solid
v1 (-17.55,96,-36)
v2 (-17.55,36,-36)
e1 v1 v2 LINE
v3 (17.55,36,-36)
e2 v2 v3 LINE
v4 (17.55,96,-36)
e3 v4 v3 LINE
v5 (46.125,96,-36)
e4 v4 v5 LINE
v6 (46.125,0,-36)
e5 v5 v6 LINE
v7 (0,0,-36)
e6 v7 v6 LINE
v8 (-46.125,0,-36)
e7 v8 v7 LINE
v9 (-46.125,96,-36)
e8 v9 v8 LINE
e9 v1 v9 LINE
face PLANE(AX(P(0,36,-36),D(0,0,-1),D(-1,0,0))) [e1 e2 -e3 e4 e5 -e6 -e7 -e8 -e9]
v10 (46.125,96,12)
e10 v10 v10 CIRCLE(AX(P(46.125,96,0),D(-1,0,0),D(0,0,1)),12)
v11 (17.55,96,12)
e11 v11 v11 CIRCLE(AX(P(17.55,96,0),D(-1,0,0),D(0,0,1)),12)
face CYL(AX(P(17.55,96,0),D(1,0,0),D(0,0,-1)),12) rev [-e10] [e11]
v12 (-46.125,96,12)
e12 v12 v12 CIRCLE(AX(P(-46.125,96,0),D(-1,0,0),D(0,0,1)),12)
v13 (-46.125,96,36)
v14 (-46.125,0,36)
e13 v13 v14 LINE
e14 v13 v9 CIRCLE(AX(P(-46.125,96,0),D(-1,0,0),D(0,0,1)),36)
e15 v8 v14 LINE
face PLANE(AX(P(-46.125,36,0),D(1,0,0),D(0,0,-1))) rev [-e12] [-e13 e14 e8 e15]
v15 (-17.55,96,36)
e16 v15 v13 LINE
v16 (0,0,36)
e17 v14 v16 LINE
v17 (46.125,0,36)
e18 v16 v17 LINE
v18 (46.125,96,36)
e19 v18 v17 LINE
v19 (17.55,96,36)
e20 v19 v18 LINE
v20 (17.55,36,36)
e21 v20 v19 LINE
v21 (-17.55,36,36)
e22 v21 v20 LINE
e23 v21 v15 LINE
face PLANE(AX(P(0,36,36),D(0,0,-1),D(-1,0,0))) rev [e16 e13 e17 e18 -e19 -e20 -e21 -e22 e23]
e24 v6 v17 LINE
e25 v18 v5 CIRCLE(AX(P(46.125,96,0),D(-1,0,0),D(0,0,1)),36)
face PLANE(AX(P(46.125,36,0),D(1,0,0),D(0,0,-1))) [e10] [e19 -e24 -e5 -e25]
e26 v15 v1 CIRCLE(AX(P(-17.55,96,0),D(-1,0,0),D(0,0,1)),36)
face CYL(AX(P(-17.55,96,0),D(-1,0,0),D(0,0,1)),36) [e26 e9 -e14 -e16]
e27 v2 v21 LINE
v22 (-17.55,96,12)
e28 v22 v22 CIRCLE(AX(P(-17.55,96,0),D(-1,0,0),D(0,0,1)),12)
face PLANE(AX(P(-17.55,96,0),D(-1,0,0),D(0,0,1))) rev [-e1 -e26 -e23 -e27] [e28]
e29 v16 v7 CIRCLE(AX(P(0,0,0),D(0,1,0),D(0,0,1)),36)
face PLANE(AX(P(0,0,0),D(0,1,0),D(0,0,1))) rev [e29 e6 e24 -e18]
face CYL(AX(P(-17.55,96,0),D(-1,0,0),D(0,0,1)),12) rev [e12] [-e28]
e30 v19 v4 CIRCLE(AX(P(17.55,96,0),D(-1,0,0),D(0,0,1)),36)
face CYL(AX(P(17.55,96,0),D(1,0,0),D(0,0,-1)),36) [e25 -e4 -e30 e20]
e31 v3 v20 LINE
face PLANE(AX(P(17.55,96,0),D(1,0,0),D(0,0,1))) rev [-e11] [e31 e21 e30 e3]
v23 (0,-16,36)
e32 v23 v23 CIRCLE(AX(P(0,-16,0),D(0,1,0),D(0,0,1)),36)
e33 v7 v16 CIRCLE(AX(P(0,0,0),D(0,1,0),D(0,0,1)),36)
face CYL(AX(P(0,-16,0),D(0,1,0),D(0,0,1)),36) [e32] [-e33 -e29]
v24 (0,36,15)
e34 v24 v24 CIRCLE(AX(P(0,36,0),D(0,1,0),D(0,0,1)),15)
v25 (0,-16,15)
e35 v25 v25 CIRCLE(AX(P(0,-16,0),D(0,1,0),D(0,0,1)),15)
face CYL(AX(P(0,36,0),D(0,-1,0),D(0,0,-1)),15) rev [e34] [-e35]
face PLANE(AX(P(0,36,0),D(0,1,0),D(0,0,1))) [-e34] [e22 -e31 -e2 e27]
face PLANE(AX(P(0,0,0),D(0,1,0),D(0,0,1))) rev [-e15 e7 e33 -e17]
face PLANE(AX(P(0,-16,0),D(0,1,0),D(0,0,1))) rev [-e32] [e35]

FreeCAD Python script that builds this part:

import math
import FreeCAD as App
import Part
import Sketcher

V = App.Vector
Q = App.Units.Quantity

doc = App.newDocument("Part")
body = doc.addObject("PartDesign::Body", "Body")

sketch1 = body.newObject("Sketcher::SketchObject", "Sketch")
sketch1.AttachmentSupport = (doc.getObject("XZ_Plane"), [""])
sketch1.MapMode = "FlatFace"
sketch1.addGeometry(Part.LineSegment(V(-46, -36, 0), V(-46, 36, 0)), False)
sketch1.addGeometry(Part.LineSegment(V(-46, 36, 0), V(46, 36, 0)), False)
sketch1.addGeometry(Part.LineSegment(V(46, 36, 0), V(46, -36, 0)), False)
sketch1.addGeometry(Part.LineSegment(V(46, -36, 0), V(-46, -36, 0)), False)
sketch1.addGeometry(Part.Circle(V(0, 0, 0), V(0, 0, 1), 15), False)
sketch1.addConstraint(Sketcher.Constraint("Coincident", 0, 2, 1, 1))
sketch1.addConstraint(Sketcher.Constraint("Coincident", 1, 2, 2, 1))
sketch1.addConstraint(Sketcher.Constraint("Coincident", 2, 2, 3, 1))
sketch1.addConstraint(Sketcher.Constraint("Coincident", 3, 2, 0, 1))
sketch1.addConstraint(Sketcher.Constraint("Vertical", 0))
sketch1.addConstraint(Sketcher.Constraint("Horizontal", 1))
sketch1.addConstraint(Sketcher.Constraint("Vertical", 2))
sketch1.addConstraint(Sketcher.Constraint("Horizontal", 3))
sketch1.addConstraint(Sketcher.Constraint("Coincident", 4, 3, -1, 1))
sketch1.addConstraint(Sketcher.Constraint("Symmetric", 0, 2, 2, 2, -1, 1))
sketch1.addConstraint(Sketcher.Constraint("Diameter", 4, Q("30 mm")))
sketch1.addConstraint(Sketcher.Constraint("DistanceY", 0, 1, 0, 2, Q("72 mm")))
sketch1.addConstraint(Sketcher.Constraint("DistanceX", 1, 1, 1, 2, Q("92.25 mm")))
pad1 = body.newObject("PartDesign::Pad", "Pad")
pad1.Profile = sketch1
pad1.Length = 36
pad1.Reversed = True

sketch2 = body.newObject("Sketcher::SketchObject", "Sketch001")
sketch2.AttachmentSupport = (doc.getObject("XZ_Plane"), [""])
sketch2.MapMode = "FlatFace"
sketch2.AttachmentOffset = App.Placement(V(0, 0, 16), App.Rotation())
sketch2.addGeometry(Part.Circle(V(0, 0, 0), V(0, 0, 1), 36), False)
sketch2.addGeometry(Part.Circle(V(0, 0, 0), V(0, 0, 1), 15), False)
sketch2.addConstraint(Sketcher.Constraint("Coincident", 0, 3, -1, 1))
sketch2.addConstraint(Sketcher.Constraint("Coincident", 1, 3, -1, 1))
sketch2.addConstraint(Sketcher.Constraint("Diameter", 0, Q("72 mm")))
sketch2.addConstraint(Sketcher.Constraint("Diameter", 1, Q("30 mm")))
pad2 = body.newObject("PartDesign::Pad", "Pad001")
pad2.Profile = sketch2
pad2.Length = 16
pad2.Reversed = True

sketch3 = body.newObject("Sketcher::SketchObject", "Sketch002")
sketch3.AttachmentSupport = (doc.getObject("YZ_Plane"), [""])
sketch3.MapMode = "FlatFace"
sketch3.AttachmentOffset = App.Placement(V(0, 0, -46.125), App.Rotation())
sketch3.addGeometry(Part.LineSegment(V(36, -36, 0), V(36, 36, 0)), False)
sketch3.addGeometry(Part.LineSegment(V(36, 36, 0), V(96, 36, 0)), False)
sketch3.addGeometry(Part.ArcOfCircle(Part.Circle(V(96, 0, 0), V(0, 0, 1), 36), math.radians(-90), math.radians(90)), False)
sketch3.addGeometry(Part.LineSegment(V(96, -36, 0), V(36, -36, 0)), False)
sketch3.addGeometry(Part.Circle(V(96, 0, 0), V(0, 0, 1), 12), False)
sketch3.addConstraint(Sketcher.Constraint("Coincident", 0, 2, 1, 1))
sketch3.addConstraint(Sketcher.Constraint("Tangent", 1, 2, 2, 2))
sketch3.addConstraint(Sketcher.Constraint("Tangent", 2, 1, 3, 1))
sketch3.addConstraint(Sketcher.Constraint("Coincident", 3, 2, 0, 1))
sketch3.addConstraint(Sketcher.Constraint("Vertical", 0))
sketch3.addConstraint(Sketcher.Constraint("Horizontal", 1))
sketch3.addConstraint(Sketcher.Constraint("Horizontal", 3))
sketch3.addConstraint(Sketcher.Constraint("Coincident", 4, 3, 2, 3))
sketch3.addConstraint(Sketcher.Constraint("PointOnObject", 2, 3, -1))
sketch3.addConstraint(Sketcher.Constraint("Diameter", 4, Q("24 mm")))
sketch3.addConstraint(Sketcher.Constraint("Radius", 2, Q("36 mm")))
sketch3.addConstraint(Sketcher.Constraint("DistanceX", 1, 1, 1, 2, Q("60 mm")))
sketch3.addConstraint(Sketcher.Constraint("DistanceX", -1, 1, 2, 3, Q("96 mm")))
pad3 = body.newObject("PartDesign::Pad", "Pad002")
pad3.Profile = sketch3
pad3.Length = 28.575
doc.recompute()

mirrored = body.newObject("PartDesign::Mirrored", "Mirrored")
mirrored.Originals = [pad3]
mirrored.MirrorPlane = (doc.getObject("YZ_Plane"), [""])
body.Tip = mirrored

doc.recompute()
